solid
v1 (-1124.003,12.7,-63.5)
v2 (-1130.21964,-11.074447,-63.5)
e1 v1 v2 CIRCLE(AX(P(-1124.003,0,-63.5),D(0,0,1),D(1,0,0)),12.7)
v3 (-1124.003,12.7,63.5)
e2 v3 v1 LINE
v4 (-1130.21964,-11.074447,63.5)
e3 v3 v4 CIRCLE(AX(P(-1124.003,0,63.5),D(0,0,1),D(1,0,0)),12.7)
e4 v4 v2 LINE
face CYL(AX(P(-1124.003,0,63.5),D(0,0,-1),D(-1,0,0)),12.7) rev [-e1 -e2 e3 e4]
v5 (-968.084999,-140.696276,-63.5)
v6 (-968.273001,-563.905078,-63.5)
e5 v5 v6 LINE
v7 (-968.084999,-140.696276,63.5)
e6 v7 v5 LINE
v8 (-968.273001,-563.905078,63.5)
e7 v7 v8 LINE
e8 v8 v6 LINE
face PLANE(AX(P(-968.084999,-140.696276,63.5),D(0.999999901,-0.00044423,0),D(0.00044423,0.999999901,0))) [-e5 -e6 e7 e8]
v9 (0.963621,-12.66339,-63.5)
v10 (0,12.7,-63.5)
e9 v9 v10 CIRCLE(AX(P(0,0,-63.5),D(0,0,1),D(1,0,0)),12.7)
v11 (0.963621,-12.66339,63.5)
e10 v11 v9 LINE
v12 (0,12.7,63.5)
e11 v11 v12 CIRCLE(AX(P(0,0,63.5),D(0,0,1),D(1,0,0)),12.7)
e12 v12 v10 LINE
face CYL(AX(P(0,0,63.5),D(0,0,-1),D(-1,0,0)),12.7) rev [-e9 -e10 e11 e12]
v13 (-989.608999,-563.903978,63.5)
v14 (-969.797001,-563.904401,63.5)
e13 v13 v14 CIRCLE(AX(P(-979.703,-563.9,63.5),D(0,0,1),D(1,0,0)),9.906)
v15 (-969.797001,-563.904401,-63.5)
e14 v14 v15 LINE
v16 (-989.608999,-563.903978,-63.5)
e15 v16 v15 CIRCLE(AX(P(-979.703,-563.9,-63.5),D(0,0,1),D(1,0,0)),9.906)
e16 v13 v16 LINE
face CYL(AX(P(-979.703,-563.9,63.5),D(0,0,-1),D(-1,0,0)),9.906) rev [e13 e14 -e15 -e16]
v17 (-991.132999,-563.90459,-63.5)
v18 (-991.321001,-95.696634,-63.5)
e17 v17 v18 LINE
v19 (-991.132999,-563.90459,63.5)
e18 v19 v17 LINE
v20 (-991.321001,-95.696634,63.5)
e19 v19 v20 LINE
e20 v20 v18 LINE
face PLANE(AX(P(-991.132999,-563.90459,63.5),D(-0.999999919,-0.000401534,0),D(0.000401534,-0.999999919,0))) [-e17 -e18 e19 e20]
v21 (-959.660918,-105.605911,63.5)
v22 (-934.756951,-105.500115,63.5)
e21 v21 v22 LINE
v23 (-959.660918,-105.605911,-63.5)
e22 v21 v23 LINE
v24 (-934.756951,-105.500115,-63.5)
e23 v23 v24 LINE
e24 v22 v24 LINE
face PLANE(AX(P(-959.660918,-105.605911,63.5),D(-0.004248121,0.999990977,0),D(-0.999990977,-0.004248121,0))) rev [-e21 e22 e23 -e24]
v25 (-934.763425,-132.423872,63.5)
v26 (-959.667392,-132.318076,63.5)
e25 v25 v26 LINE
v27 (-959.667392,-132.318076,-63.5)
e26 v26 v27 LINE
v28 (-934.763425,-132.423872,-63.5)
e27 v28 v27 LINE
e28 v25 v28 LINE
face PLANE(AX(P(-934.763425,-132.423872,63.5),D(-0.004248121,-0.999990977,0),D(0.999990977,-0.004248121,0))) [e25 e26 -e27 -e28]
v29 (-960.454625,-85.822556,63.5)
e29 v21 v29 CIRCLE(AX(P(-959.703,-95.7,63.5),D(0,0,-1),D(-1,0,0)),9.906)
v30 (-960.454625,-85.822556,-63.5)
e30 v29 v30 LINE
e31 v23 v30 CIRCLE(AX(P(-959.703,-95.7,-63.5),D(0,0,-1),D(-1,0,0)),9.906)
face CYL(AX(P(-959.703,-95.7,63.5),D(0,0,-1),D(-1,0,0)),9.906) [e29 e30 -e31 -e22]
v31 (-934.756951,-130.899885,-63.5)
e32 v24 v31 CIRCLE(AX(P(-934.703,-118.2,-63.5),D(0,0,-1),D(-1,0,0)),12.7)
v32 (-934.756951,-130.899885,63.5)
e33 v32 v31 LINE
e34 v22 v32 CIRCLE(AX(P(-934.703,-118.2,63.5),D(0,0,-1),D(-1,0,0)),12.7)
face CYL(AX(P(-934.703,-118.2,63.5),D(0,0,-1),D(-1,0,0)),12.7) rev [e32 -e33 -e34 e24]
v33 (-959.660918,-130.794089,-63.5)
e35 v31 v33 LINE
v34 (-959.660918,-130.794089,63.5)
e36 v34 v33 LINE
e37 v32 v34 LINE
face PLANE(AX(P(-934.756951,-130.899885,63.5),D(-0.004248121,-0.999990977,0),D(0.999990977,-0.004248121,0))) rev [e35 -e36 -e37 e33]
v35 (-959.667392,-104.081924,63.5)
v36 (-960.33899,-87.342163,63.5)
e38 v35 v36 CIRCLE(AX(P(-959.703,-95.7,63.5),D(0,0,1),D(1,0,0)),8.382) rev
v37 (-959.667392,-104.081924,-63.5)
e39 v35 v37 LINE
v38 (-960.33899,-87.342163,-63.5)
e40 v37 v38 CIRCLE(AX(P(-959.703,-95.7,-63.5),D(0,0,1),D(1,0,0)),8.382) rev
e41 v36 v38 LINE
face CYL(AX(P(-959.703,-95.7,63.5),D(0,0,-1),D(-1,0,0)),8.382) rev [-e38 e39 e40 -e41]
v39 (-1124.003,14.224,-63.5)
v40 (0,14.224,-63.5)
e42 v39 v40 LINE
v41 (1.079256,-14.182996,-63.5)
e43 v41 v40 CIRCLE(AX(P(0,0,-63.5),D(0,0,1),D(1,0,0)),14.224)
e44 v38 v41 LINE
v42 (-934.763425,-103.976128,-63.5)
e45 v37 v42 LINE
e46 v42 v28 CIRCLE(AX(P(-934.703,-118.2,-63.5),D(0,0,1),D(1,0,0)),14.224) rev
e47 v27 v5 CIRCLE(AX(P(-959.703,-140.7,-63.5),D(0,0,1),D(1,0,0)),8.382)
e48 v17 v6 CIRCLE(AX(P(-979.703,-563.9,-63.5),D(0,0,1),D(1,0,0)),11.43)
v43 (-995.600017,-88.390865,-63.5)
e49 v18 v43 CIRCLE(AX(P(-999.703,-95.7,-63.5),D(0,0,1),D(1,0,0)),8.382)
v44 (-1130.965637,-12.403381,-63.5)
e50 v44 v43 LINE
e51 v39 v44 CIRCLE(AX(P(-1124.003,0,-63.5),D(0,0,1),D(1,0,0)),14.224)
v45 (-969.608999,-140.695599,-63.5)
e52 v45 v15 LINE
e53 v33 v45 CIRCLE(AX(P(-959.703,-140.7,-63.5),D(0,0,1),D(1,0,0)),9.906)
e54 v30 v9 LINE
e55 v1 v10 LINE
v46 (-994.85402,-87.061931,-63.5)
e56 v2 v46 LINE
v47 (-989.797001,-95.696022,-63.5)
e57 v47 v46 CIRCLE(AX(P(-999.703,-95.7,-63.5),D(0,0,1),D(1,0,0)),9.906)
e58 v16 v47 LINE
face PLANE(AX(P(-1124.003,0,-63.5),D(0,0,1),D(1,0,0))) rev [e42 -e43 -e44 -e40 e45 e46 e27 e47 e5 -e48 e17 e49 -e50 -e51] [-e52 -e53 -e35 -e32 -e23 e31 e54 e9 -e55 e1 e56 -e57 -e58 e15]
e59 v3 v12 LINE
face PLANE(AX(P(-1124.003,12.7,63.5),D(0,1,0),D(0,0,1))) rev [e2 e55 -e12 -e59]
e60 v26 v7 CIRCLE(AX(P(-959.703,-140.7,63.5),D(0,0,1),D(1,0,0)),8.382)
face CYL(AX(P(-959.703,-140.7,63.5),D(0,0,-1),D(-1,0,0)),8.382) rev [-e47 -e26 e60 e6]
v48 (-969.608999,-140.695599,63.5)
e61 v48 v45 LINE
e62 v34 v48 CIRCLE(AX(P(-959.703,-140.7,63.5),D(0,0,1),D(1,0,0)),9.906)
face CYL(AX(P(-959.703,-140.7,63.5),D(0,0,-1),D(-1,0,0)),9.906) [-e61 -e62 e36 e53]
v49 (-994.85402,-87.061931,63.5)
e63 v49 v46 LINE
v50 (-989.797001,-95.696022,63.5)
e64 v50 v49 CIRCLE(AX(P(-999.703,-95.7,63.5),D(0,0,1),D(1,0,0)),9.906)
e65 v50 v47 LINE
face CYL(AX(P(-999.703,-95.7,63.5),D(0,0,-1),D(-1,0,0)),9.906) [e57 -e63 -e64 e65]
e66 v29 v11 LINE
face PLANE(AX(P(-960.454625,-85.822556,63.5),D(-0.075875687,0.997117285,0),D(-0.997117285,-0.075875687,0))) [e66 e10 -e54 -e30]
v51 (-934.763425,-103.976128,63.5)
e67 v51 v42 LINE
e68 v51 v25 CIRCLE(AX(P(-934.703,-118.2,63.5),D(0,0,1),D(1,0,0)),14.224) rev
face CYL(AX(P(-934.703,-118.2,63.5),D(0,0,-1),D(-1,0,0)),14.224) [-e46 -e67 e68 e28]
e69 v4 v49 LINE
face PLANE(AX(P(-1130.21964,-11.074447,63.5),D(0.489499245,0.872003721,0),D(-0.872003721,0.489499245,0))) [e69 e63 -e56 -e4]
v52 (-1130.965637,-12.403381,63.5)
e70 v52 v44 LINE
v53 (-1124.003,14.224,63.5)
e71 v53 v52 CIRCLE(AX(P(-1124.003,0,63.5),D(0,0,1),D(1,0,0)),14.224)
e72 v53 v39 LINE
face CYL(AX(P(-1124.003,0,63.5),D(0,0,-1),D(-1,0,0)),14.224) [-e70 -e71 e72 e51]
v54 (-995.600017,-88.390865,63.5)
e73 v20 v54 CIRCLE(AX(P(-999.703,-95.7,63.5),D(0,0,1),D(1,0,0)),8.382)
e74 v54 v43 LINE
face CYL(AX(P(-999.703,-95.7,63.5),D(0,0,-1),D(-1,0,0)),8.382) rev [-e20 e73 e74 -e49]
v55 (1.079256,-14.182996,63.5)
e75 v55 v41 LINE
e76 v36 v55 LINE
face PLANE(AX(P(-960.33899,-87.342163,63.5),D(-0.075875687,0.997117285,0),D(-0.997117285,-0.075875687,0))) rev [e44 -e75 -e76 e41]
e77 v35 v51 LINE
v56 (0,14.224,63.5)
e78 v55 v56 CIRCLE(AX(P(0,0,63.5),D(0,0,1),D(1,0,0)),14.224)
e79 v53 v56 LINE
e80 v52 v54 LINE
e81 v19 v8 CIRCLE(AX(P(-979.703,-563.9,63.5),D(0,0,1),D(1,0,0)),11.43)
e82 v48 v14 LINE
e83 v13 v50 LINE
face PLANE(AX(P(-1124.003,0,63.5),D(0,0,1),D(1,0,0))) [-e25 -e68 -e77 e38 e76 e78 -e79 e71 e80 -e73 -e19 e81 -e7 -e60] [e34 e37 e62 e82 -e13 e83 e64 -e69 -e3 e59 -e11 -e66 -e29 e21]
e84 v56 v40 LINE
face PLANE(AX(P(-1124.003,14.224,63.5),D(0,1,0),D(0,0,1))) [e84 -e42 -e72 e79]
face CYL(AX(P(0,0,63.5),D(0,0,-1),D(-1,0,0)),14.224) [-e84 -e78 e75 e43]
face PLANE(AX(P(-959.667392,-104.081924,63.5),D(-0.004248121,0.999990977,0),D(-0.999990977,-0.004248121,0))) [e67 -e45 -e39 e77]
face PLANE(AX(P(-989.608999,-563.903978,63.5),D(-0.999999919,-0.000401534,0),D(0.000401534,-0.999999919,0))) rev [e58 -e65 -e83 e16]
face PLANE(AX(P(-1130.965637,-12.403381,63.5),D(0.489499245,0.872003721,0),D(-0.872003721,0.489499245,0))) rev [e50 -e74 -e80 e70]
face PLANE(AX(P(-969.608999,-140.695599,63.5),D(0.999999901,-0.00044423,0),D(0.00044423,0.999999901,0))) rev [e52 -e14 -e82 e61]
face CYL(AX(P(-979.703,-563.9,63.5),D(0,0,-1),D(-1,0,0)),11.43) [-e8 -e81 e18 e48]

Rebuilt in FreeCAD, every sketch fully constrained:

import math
import FreeCAD as App
import Part
import Sketcher
Q = App.Units.Quantity

doc = App.newDocument("Part")
body = doc.addObject("PartDesign::Body", "Body")

# Sketch on XY plane
sketch1 = body.newObject("Sketcher::SketchObject", "Sketch")
sketch1.AttachmentSupport = (doc.getObject("XY_Plane"), [""])
sketch1.MapMode = "FlatFace"
sketch1.addGeometry(Part.LineSegment(App.Vector(-935, -104, 0), App.Vector(-960, -104, 0)), False)
sketch1.addGeometry(Part.ArcOfCircle(Part.Circle(App.Vector(-960, -96, 0), App.Vector(0, 0, 1), 8), math.radians(94), math.radians(270)), False)
sketch1.addGeometry(Part.LineSegment(App.Vector(-960, -87, 0), App.Vector(1, -14, 0)), False)
sketch1.addGeometry(Part.ArcOfCircle(Part.Circle(App.Vector(0, 0, 0), App.Vector(0, 0, 1), 14), math.radians(-86), math.radians(90)), False)
sketch1.addGeometry(Part.LineSegment(App.Vector(0, 14, 0), App.Vector(-1124, 14, 0)), False)
sketch1.addGeometry(Part.ArcOfCircle(Part.Circle(App.Vector(-1124, 0, 0), App.Vector(0, 0, 1), 14), math.radians(90), math.radians(241)), False)
sketch1.addGeometry(Part.LineSegment(App.Vector(-1131, -12, 0), App.Vector(-996, -88, 0)), False)
sketch1.addGeometry(Part.ArcOfCircle(Part.Circle(App.Vector(-1000, -96, 0), App.Vector(0, 0, 1), 8), math.radians(0), math.radians(61)), False)
sketch1.addGeometry(Part.LineSegment(App.Vector(-991, -96, 0), App.Vector(-991, -564, 0)), False)
sketch1.addGeometry(Part.ArcOfCircle(Part.Circle(App.Vector(-980, -564, 0), App.Vector(0, 0, 1), 11), math.radians(-180), math.radians(0)), False)
sketch1.addGeometry(Part.LineSegment(App.Vector(-968, -564, 0), App.Vector(-968, -141, 0)), False)
sketch1.addGeometry(Part.ArcOfCircle(Part.Circle(App.Vector(-960, -141, 0), App.Vector(0, 0, 1), 8), math.radians(90), math.radians(180)), False)
sketch1.addGeometry(Part.LineSegment(App.Vector(-960, -132, 0), App.Vector(-935, -132, 0)), False)
sketch1.addGeometry(Part.ArcOfCircle(Part.Circle(App.Vector(-935, -118, 0), App.Vector(0, 0, 1), 14), math.radians(-90), math.radians(90)), False)
sketch1.addGeometry(Part.LineSegment(App.Vector(-960, -106, 0), App.Vector(-935, -106, 0)), False)
sketch1.addGeometry(Part.ArcOfCircle(Part.Circle(App.Vector(-935, -118, 0), App.Vector(0, 0, 1), 13), math.radians(-90), math.radians(90)), False)
sketch1.addGeometry(Part.LineSegment(App.Vector(-935, -131, 0), App.Vector(-960, -131, 0)), False)
sketch1.addGeometry(Part.ArcOfCircle(Part.Circle(App.Vector(-960, -141, 0), App.Vector(0, 0, 1), 10), math.radians(90), math.radians(180)), False)
sketch1.addGeometry(Part.LineSegment(App.Vector(-970, -141, 0), App.Vector(-970, -564, 0)), False)
sketch1.addGeometry(Part.ArcOfCircle(Part.Circle(App.Vector(-980, -564, 0), App.Vector(0, 0, 1), 10), math.radians(-180), math.radians(0)), False)
sketch1.addGeometry(Part.LineSegment(App.Vector(-990, -564, 0), App.Vector(-990, -96, 0)), False)
sketch1.addGeometry(Part.ArcOfCircle(Part.Circle(App.Vector(-1000, -96, 0), App.Vector(0, 0, 1), 10), math.radians(0), math.radians(61)), False)
sketch1.addGeometry(Part.LineSegment(App.Vector(-995, -87, 0), App.Vector(-1130, -11, 0)), False)
sketch1.addGeometry(Part.ArcOfCircle(Part.Circle(App.Vector(-1124, 0, 0), App.Vector(0, 0, 1), 13), math.radians(90), math.radians(241)), False)
sketch1.addGeometry(Part.LineSegment(App.Vector(-1124, 13, 0), App.Vector(0, 13, 0)), False)
sketch1.addGeometry(Part.ArcOfCircle(Part.Circle(App.Vector(0, 0, 0), App.Vector(0, 0, 1), 13), math.radians(-86), math.radians(90)), False)
sketch1.addGeometry(Part.LineSegment(App.Vector(1, -13, 0), App.Vector(-960, -86, 0)), False)
sketch1.addGeometry(Part.ArcOfCircle(Part.Circle(App.Vector(-960, -96, 0), App.Vector(0, 0, 1), 10), math.radians(94), math.radians(270)), False)
sketch1.addConstraint(Sketcher.Constraint("Tangent", 0, 2, 1, 2))
sketch1.addConstraint(Sketcher.Constraint("Tangent", 1, 1, 2, 1))
sketch1.addConstraint(Sketcher.Constraint("Tangent", 2, 2, 3, 1))
sketch1.addConstraint(Sketcher.Constraint("Tangent", 3, 2, 4, 1))
sketch1.addConstraint(Sketcher.Constraint("Tangent", 4, 2, 5, 1))
sketch1.addConstraint(Sketcher.Constraint("Tangent", 5, 2, 6, 1))
sketch1.addConstraint(Sketcher.Constraint("Tangent", 6, 2, 7, 2))
sketch1.addConstraint(Sketcher.Constraint("Tangent", 7, 1, 8, 1))
sketch1.addConstraint(Sketcher.Constraint("Tangent", 8, 2, 9, 1))
sketch1.addConstraint(Sketcher.Constraint("Tangent", 9, 2, 10, 1))
sketch1.addConstraint(Sketcher.Constraint("Tangent", 10, 2, 11, 2))
sketch1.addConstraint(Sketcher.Constraint("Tangent", 11, 1, 12, 1))
sketch1.addConstraint(Sketcher.Constraint("Tangent", 12, 2, 13, 1))
sketch1.addConstraint(Sketcher.Constraint("Tangent", 13, 2, 0, 1))
sketch1.addConstraint(Sketcher.Constraint("Tangent", 14, 2, 15, 2))
sketch1.addConstraint(Sketcher.Constraint("Tangent", 15, 1, 16, 1))
sketch1.addConstraint(Sketcher.Constraint("Tangent", 16, 2, 17, 1))
sketch1.addConstraint(Sketcher.Constraint("Tangent", 17, 2, 18, 1))
sketch1.addConstraint(Sketcher.Constraint("Tangent", 18, 2, 19, 2))
sketch1.addConstraint(Sketcher.Constraint("Tangent", 19, 1, 20, 1))
sketch1.addConstraint(Sketcher.Constraint("Tangent", 20, 2, 21, 1))
sketch1.addConstraint(Sketcher.Constraint("Tangent", 21, 2, 22, 1))
sketch1.addConstraint(Sketcher.Constraint("Tangent", 22, 2, 23, 2))
sketch1.addConstraint(Sketcher.Constraint("Tangent", 23, 1, 24, 1))
sketch1.addConstraint(Sketcher.Constraint("Tangent", 24, 2, 25, 2))
sketch1.addConstraint(Sketcher.Constraint("Tangent", 25, 1, 26, 1))
sketch1.addConstraint(Sketcher.Constraint("Tangent", 26, 2, 27, 1))
sketch1.addConstraint(Sketcher.Constraint("Tangent", 27, 2, 14, 1))
sketch1.addConstraint(Sketcher.Constraint("Horizontal", 4))
sketch1.addConstraint(Sketcher.Constraint("Horizontal", 24))
sketch1.addConstraint(Sketcher.Constraint("Coincident", 3, 3, -1, 1))
sketch1.addConstraint(Sketcher.Constraint("Coincident", 25, 3, -1, 1))
sketch1.addConstraint(Sketcher.Constraint("Coincident", 15, 3, 13, 3))
sketch1.addConstraint(Sketcher.Constraint("Coincident", 17, 3, 11, 3))
sketch1.addConstraint(Sketcher.Constraint("Coincident", 19, 3, 9, 3))
sketch1.addConstraint(Sketcher.Constraint("Coincident", 21, 3, 7, 3))
sketch1.addConstraint(Sketcher.Constraint("Coincident", 23, 3, 5, 3))
sketch1.addConstraint(Sketcher.Constraint("Coincident", 27, 3, 1, 3))
sketch1.addConstraint(Sketcher.Constraint("Equal", 3, 5))
sketch1.addConstraint(Sketcher.Constraint("Equal", 1, 7))
sketch1.addConstraint(Sketcher.Constraint("Equal", 7, 11))
sketch1.addConstraint(Sketcher.Constraint("Equal", 5, 13))
sketch1.addConstraint(Sketcher.Constraint("Equal", 17, 19))
sketch1.addConstraint(Sketcher.Constraint("Equal", 19, 21))
sketch1.addConstraint(Sketcher.Constraint("Equal", 15, 23))
sketch1.addConstraint(Sketcher.Constraint("Equal", 21, 27))
sketch1.addConstraint(Sketcher.Constraint("Parallel", 0, 14))
sketch1.addConstraint(Sketcher.Constraint("Parallel", 10, 18))
sketch1.addConstraint(Sketcher.Constraint("Horizontal", 1, 3, 7, 3))
sketch1.addConstraint(Sketcher.Constraint("Vertical", 1, 3, 11, 3))
sketch1.addConstraint(Sketcher.Constraint("Vertical", 0, 2, 11, 1))
sketch1.addConstraint(Sketcher.Constraint("Radius", 15, Q("0.5 in")))
sketch1.addConstraint(Sketcher.Constraint("Radius", 1, Q("0.33 in")))
sketch1.addConstraint(Sketcher.Constraint("Radius", 3, Q("0.56 in")))
sketch1.addConstraint(Sketcher.Constraint("DistanceX", 4, 2, 4, 1, Q("1124.003 mm")))
sketch1.addConstraint(Sketcher.Constraint("DistanceX", 1, 3, -1, 1, Q("959.703 mm")))
sketch1.addConstraint(Sketcher.Constraint("DistanceY", 1, 3, -1, 1, Q("95.7 mm")))
sketch1.addConstraint(Sketcher.Constraint("DistanceX", 7, 3, -1, 1, Q("999.703 mm")))
sketch1.addConstraint(Sketcher.Constraint("DistanceX", 9, 3, -1, 1, Q("979.703 mm")))
sketch1.addConstraint(Sketcher.Constraint("DistanceY", 9, 3, -1, 1, Q("563.9 mm")))
sketch1.addConstraint(Sketcher.Constraint("DistanceY", 11, 3, -1, 1, Q("140.7 mm")))
sketch1.addConstraint(Sketcher.Constraint("DistanceX", 13, 3, -1, 1, Q("934.703 mm")))
pad1 = body.newObject("PartDesign::Pad", "Pad")
pad1.Profile = sketch1
pad1.Length = Q("5 in")
pad1.Midplane = True

doc.recompute()
